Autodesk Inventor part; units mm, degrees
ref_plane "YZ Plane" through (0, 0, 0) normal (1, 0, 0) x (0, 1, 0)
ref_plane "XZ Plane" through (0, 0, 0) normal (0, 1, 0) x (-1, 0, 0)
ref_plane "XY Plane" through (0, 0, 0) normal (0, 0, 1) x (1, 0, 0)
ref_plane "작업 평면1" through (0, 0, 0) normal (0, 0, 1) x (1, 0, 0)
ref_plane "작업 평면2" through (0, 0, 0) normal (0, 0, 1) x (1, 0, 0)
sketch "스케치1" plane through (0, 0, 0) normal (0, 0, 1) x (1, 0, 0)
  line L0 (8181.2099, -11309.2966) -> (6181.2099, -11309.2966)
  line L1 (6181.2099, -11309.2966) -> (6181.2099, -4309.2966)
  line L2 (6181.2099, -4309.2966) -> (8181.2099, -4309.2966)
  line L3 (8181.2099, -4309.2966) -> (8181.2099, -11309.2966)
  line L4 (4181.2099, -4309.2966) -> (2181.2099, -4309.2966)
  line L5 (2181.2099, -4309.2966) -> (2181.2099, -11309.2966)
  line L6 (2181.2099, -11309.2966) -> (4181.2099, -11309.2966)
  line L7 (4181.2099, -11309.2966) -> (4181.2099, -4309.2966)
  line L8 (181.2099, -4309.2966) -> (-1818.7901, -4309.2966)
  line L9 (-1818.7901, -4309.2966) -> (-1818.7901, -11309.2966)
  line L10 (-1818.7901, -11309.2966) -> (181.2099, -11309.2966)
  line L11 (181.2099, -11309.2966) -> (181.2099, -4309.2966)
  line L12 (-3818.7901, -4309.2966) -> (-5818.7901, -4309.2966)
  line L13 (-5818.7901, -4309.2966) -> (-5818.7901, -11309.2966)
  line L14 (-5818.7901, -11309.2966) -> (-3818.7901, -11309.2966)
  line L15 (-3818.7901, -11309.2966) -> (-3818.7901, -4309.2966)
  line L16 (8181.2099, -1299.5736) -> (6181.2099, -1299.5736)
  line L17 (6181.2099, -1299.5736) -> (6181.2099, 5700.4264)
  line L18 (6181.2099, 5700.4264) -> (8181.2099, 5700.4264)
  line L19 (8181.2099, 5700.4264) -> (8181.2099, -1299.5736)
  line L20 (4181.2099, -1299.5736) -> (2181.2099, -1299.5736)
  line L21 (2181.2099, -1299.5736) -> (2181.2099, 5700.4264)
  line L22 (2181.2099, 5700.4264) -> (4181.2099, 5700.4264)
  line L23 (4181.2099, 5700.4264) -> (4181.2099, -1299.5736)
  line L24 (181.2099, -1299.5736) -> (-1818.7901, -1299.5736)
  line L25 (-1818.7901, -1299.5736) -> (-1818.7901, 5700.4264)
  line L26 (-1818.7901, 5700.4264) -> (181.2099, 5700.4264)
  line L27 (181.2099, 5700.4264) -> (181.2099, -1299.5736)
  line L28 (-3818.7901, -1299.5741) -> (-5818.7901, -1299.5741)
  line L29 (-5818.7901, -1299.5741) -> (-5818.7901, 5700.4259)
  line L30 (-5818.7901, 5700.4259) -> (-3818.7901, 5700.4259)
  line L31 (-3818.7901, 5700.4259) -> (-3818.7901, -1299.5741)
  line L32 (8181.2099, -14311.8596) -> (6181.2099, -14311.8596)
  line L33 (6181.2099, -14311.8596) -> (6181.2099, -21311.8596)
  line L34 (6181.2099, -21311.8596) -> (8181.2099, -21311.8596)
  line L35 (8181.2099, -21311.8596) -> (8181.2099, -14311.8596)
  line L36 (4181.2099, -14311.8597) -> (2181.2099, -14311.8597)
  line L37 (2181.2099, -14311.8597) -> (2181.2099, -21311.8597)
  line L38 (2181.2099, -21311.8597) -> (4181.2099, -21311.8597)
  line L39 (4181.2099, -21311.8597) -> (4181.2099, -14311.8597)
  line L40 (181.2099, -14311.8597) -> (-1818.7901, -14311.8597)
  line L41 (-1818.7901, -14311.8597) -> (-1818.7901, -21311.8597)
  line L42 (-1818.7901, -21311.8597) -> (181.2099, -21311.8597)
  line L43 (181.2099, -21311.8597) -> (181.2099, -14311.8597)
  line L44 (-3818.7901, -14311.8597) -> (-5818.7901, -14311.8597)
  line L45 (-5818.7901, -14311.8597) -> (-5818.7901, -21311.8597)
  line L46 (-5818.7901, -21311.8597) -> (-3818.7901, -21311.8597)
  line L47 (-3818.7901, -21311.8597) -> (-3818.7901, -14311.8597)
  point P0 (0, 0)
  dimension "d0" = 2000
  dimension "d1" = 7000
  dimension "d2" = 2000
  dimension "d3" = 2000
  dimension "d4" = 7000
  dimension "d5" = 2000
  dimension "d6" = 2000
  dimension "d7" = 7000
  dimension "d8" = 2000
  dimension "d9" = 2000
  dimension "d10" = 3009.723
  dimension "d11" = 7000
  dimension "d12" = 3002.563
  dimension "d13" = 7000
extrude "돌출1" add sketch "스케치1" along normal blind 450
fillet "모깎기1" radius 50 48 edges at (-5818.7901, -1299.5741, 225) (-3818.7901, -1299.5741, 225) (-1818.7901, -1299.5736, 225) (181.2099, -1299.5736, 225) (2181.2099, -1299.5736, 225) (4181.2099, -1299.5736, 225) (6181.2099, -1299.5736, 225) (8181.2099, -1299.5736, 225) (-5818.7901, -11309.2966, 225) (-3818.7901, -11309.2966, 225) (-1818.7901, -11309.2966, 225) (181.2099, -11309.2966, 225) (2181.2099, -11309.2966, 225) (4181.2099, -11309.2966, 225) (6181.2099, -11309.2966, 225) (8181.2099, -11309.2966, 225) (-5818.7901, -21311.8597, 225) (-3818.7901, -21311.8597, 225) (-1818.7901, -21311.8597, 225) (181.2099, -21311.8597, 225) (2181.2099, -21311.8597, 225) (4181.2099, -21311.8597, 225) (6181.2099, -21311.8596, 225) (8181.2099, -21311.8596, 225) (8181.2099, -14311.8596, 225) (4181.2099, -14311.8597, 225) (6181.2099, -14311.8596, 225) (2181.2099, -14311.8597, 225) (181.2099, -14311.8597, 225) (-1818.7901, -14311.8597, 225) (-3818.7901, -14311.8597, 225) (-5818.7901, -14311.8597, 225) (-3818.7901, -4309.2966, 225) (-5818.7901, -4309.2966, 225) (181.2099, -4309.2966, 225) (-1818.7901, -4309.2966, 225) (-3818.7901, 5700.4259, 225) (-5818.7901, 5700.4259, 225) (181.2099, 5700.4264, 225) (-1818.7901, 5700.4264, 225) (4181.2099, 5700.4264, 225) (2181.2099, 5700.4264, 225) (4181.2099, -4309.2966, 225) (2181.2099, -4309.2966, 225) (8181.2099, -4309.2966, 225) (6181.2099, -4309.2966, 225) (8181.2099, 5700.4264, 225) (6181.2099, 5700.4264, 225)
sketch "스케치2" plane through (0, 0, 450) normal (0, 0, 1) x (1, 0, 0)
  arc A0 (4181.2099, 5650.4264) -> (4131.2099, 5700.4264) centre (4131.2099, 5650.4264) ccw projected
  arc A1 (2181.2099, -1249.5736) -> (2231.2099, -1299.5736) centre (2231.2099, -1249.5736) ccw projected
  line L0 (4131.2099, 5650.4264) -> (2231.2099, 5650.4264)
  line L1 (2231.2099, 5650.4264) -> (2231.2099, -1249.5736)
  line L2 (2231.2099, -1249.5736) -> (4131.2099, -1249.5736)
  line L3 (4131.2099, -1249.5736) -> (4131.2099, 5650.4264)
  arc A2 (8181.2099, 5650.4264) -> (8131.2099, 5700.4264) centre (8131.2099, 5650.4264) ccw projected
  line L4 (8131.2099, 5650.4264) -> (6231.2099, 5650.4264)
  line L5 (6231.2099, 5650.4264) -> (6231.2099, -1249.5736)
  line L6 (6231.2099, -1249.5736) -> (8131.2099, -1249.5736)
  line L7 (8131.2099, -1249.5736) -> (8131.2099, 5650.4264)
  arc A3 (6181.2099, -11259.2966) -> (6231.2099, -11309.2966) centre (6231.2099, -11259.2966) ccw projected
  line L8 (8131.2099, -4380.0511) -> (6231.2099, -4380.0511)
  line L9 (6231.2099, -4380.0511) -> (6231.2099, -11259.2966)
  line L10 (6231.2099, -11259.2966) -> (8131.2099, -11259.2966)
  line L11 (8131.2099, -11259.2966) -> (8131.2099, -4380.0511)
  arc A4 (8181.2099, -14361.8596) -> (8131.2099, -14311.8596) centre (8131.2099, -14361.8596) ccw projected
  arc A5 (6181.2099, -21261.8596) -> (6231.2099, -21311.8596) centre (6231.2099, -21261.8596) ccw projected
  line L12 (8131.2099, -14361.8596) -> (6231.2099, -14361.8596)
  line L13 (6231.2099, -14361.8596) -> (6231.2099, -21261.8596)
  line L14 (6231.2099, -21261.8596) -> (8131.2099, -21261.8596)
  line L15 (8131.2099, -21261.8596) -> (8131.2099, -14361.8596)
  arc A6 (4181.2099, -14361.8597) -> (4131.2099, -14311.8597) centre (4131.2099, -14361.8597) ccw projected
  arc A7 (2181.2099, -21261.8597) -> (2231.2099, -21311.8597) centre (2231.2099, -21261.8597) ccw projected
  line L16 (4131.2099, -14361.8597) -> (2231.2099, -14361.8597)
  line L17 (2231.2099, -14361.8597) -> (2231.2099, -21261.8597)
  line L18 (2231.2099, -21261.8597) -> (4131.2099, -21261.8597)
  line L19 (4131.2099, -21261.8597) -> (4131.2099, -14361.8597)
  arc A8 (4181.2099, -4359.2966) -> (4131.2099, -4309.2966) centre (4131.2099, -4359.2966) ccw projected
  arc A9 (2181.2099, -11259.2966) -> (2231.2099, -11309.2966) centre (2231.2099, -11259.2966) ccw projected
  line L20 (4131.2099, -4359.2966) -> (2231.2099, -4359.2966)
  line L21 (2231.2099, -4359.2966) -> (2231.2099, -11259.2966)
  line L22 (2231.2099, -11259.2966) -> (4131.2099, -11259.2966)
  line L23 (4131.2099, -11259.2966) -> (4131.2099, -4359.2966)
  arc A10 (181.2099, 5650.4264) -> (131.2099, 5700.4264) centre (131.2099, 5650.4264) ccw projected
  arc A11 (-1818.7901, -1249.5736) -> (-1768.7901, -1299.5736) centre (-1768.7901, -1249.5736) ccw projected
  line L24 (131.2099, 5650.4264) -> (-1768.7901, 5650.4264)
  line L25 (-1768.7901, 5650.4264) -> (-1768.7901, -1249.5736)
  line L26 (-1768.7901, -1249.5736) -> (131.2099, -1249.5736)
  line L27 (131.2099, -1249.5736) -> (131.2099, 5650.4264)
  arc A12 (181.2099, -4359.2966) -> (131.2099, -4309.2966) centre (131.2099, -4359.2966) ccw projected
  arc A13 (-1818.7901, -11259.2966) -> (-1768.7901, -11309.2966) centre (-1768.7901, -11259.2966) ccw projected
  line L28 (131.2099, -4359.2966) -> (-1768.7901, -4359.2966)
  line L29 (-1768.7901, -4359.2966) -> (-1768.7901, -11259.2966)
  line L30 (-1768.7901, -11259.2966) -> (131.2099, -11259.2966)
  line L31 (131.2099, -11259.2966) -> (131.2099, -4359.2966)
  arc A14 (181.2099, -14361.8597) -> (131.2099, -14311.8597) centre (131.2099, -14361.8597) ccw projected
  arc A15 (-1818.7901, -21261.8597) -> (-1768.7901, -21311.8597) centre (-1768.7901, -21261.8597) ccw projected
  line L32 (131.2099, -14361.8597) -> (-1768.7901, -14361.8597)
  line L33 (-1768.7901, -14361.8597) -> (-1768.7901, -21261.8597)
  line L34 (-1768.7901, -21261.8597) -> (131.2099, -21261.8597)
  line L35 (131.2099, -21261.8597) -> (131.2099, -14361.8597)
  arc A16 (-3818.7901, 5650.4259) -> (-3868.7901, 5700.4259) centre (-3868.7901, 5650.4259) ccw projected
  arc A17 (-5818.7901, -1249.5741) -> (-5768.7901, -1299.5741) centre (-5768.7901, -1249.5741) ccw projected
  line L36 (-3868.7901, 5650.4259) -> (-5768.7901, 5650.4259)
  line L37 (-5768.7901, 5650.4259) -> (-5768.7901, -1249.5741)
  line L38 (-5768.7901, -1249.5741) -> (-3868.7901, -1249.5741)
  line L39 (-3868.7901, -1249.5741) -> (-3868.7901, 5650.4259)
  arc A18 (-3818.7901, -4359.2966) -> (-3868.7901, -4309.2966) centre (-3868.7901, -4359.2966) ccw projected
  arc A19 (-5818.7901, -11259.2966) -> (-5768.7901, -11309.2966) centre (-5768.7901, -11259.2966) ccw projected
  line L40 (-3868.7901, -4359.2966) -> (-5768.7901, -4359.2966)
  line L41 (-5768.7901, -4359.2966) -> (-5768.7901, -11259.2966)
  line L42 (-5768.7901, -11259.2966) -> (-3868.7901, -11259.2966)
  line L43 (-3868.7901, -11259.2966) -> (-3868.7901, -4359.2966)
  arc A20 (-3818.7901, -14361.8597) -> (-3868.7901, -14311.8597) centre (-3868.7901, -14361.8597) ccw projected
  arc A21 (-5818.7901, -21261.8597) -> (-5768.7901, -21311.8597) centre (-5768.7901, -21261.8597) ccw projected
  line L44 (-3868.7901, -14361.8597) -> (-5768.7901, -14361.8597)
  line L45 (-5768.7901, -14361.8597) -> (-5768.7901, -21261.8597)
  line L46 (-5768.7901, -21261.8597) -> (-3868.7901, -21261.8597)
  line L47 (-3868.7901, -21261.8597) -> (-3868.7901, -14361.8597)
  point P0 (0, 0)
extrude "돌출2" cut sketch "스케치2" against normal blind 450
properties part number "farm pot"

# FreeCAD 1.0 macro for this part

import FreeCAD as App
import Part
import Sketcher
Q = App.Units.Quantity


def edges_at(feature, points):
    """Names of the edges that pass closest to the given points."""
    edges = feature.Shape.Edges
    near = lambda p: min(range(len(edges)), key=lambda i: edges[i].distToShape(Part.Vertex(*p))[0])
    return sorted({f"Edge{near(p) + 1}" for p in points})

doc = App.newDocument("Part")
body = doc.addObject("PartDesign::Body", "Body")
body.AllowCompound = True

# Sketch on XY plane
sketch1 = doc.addObject("Sketcher::SketchObject", "Sketch")
body.addObject(sketch1)
sketch1.AttachmentSupport = (doc.XY_Plane, [""])
sketch1.MapMode = "FlatFace"
sketch1.addGeometry(Part.LineSegment(App.Vector(6181, -11309, 0), App.Vector(8181, -11309, 0)), False)
sketch1.addGeometry(Part.LineSegment(App.Vector(8181, -11309, 0), App.Vector(8181, -4309, 0)), False)
sketch1.addGeometry(Part.LineSegment(App.Vector(8181, -4309, 0), App.Vector(6181, -4309, 0)), False)
sketch1.addGeometry(Part.LineSegment(App.Vector(6181, -4309, 0), App.Vector(6181, -11309, 0)), False)
sketch1.addGeometry(Part.LineSegment(App.Vector(4181, -11309, 0), App.Vector(4181, -4309, 0)), False)
sketch1.addGeometry(Part.LineSegment(App.Vector(4181, -4309, 0), App.Vector(2181, -4309, 0)), False)
sketch1.addGeometry(Part.LineSegment(App.Vector(2181, -4309, 0), App.Vector(2181, -11309, 0)), False)
sketch1.addGeometry(Part.LineSegment(App.Vector(2181, -11309, 0), App.Vector(4181, -11309, 0)), False)
sketch1.addGeometry(Part.LineSegment(App.Vector(181, -11309, 0), App.Vector(181, -4309, 0)), False)
sketch1.addGeometry(Part.LineSegment(App.Vector(181, -4309, 0), App.Vector(-1819, -4309, 0)), False)
sketch1.addGeometry(Part.LineSegment(App.Vector(-1819, -4309, 0), App.Vector(-1819, -11309, 0)), False)
sketch1.addGeometry(Part.LineSegment(App.Vector(-1819, -11309, 0), App.Vector(181, -11309, 0)), False)
sketch1.addGeometry(Part.LineSegment(App.Vector(-3819, -11309, 0), App.Vector(-3819, -4309, 0)), False)
sketch1.addGeometry(Part.LineSegment(App.Vector(-3819, -4309, 0), App.Vector(-5819, -4309, 0)), False)
sketch1.addGeometry(Part.LineSegment(App.Vector(-5819, -4309, 0), App.Vector(-5819, -11309, 0)), False)
sketch1.addGeometry(Part.LineSegment(App.Vector(-5819, -11309, 0), App.Vector(-3819, -11309, 0)), False)
sketch1.addGeometry(Part.LineSegment(App.Vector(6181, -1300, 0), App.Vector(8181, -1300, 0)), False)
sketch1.addGeometry(Part.LineSegment(App.Vector(8181, -1300, 0), App.Vector(8181, 5700, 0)), False)
sketch1.addGeometry(Part.LineSegment(App.Vector(8181, 5700, 0), App.Vector(6181, 5700, 0)), False)
sketch1.addGeometry(Part.LineSegment(App.Vector(6181, 5700, 0), App.Vector(6181, -1300, 0)), False)
sketch1.addGeometry(Part.LineSegment(App.Vector(2181, -1300, 0), App.Vector(4181, -1300, 0)), False)
sketch1.addGeometry(Part.LineSegment(App.Vector(4181, -1300, 0), App.Vector(4181, 5700, 0)), False)
sketch1.addGeometry(Part.LineSegment(App.Vector(4181, 5700, 0), App.Vector(2181, 5700, 0)), False)
sketch1.addGeometry(Part.LineSegment(App.Vector(2181, 5700, 0), App.Vector(2181, -1300, 0)), False)
sketch1.addGeometry(Part.LineSegment(App.Vector(-1819, -1300, 0), App.Vector(181, -1300, 0)), False)
sketch1.addGeometry(Part.LineSegment(App.Vector(181, -1300, 0), App.Vector(181, 5700, 0)), False)
sketch1.addGeometry(Part.LineSegment(App.Vector(181, 5700, 0), App.Vector(-1819, 5700, 0)), False)
sketch1.addGeometry(Part.LineSegment(App.Vector(-1819, 5700, 0), App.Vector(-1819, -1300, 0)), False)
sketch1.addGeometry(Part.LineSegment(App.Vector(-5819, -1300, 0), App.Vector(-3819, -1300, 0)), False)
sketch1.addGeometry(Part.LineSegment(App.Vector(-3819, -1300, 0), App.Vector(-3819, 5700, 0)), False)
sketch1.addGeometry(Part.LineSegment(App.Vector(-3819, 5700, 0), App.Vector(-5819, 5700, 0)), False)
sketch1.addGeometry(Part.LineSegment(App.Vector(-5819, 5700, 0), App.Vector(-5819, -1300, 0)), False)
sketch1.addGeometry(Part.LineSegment(App.Vector(8181, -21312, 0), App.Vector(8181, -14312, 0)), False)
sketch1.addGeometry(Part.LineSegment(App.Vector(8181, -14312, 0), App.Vector(6181, -14312, 0)), False)
sketch1.addGeometry(Part.LineSegment(App.Vector(6181, -14312, 0), App.Vector(6181, -21312, 0)), False)
sketch1.addGeometry(Part.LineSegment(App.Vector(6181, -21312, 0), App.Vector(8181, -21312, 0)), False)
sketch1.addGeometry(Part.LineSegment(App.Vector(4181, -21312, 0), App.Vector(4181, -14312, 0)), False)
sketch1.addGeometry(Part.LineSegment(App.Vector(4181, -14312, 0), App.Vector(2181, -14312, 0)), False)
sketch1.addGeometry(Part.LineSegment(App.Vector(2181, -14312, 0), App.Vector(2181, -21312, 0)), False)
sketch1.addGeometry(Part.LineSegment(App.Vector(2181, -21312, 0), App.Vector(4181, -21312, 0)), False)
sketch1.addGeometry(Part.LineSegment(App.Vector(181, -21312, 0), App.Vector(181, -14312, 0)), False)
sketch1.addGeometry(Part.LineSegment(App.Vector(181, -14312, 0), App.Vector(-1819, -14312, 0)), False)
sketch1.addGeometry(Part.LineSegment(App.Vector(-1819, -14312, 0), App.Vector(-1819, -21312, 0)), False)
sketch1.addGeometry(Part.LineSegment(App.Vector(-1819, -21312, 0), App.Vector(181, -21312, 0)), False)
sketch1.addGeometry(Part.LineSegment(App.Vector(-3819, -21312, 0), App.Vector(-3819, -14312, 0)), False)
sketch1.addGeometry(Part.LineSegment(App.Vector(-3819, -14312, 0), App.Vector(-5819, -14312, 0)), False)
sketch1.addGeometry(Part.LineSegment(App.Vector(-5819, -14312, 0), App.Vector(-5819, -21312, 0)), False)
sketch1.addGeometry(Part.LineSegment(App.Vector(-5819, -21312, 0), App.Vector(-3819, -21312, 0)), False)
sketch1.addConstraint(Sketcher.Constraint("Coincident", 0, 2, 1, 1))
sketch1.addConstraint(Sketcher.Constraint("Coincident", 1, 2, 2, 1))
sketch1.addConstraint(Sketcher.Constraint("Coincident", 2, 2, 3, 1))
sketch1.addConstraint(Sketcher.Constraint("Coincident", 3, 2, 0, 1))
sketch1.addConstraint(Sketcher.Constraint("Coincident", 4, 2, 5, 1))
sketch1.addConstraint(Sketcher.Constraint("Coincident", 5, 2, 6, 1))
sketch1.addConstraint(Sketcher.Constraint("Coincident", 6, 2, 7, 1))
sketch1.addConstraint(Sketcher.Constraint("Coincident", 7, 2, 4, 1))
sketch1.addConstraint(Sketcher.Constraint("Coincident", 8, 2, 9, 1))
sketch1.addConstraint(Sketcher.Constraint("Coincident", 9, 2, 10, 1))
sketch1.addConstraint(Sketcher.Constraint("Coincident", 10, 2, 11, 1))
sketch1.addConstraint(Sketcher.Constraint("Coincident", 11, 2, 8, 1))
sketch1.addConstraint(Sketcher.Constraint("Coincident", 12, 2, 13, 1))
sketch1.addConstraint(Sketcher.Constraint("Coincident", 13, 2, 14, 1))
sketch1.addConstraint(Sketcher.Constraint("Coincident", 14, 2, 15, 1))
sketch1.addConstraint(Sketcher.Constraint("Coincident", 15, 2, 12, 1))
sketch1.addConstraint(Sketcher.Constraint("Coincident", 16, 2, 17, 1))
sketch1.addConstraint(Sketcher.Constraint("Coincident", 17, 2, 18, 1))
sketch1.addConstraint(Sketcher.Constraint("Coincident", 18, 2, 19, 1))
sketch1.addConstraint(Sketcher.Constraint("Coincident", 19, 2, 16, 1))
sketch1.addConstraint(Sketcher.Constraint("Coincident", 20, 2, 21, 1))
sketch1.addConstraint(Sketcher.Constraint("Coincident", 21, 2, 22, 1))
sketch1.addConstraint(Sketcher.Constraint("Coincident", 22, 2, 23, 1))
sketch1.addConstraint(Sketcher.Constraint("Coincident", 23, 2, 20, 1))
sketch1.addConstraint(Sketcher.Constraint("Coincident", 24, 2, 25, 1))
sketch1.addConstraint(Sketcher.Constraint("Coincident", 25, 2, 26, 1))
sketch1.addConstraint(Sketcher.Constraint("Coincident", 26, 2, 27, 1))
sketch1.addConstraint(Sketcher.Constraint("Coincident", 27, 2, 24, 1))
sketch1.addConstraint(Sketcher.Constraint("Coincident", 28, 2, 29, 1))
sketch1.addConstraint(Sketcher.Constraint("Coincident", 29, 2, 30, 1))
sketch1.addConstraint(Sketcher.Constraint("Coincident", 30, 2, 31, 1))
sketch1.addConstraint(Sketcher.Constraint("Coincident", 31, 2, 28, 1))
sketch1.addConstraint(Sketcher.Constraint("Coincident", 32, 2, 33, 1))
sketch1.addConstraint(Sketcher.Constraint("Coincident", 33, 2, 34, 1))
sketch1.addConstraint(Sketcher.Constraint("Coincident", 34, 2, 35, 1))
sketch1.addConstraint(Sketcher.Constraint("Coincident", 35, 2, 32, 1))
sketch1.addConstraint(Sketcher.Constraint("Coincident", 36, 2, 37, 1))
sketch1.addConstraint(Sketcher.Constraint("Coincident", 37, 2, 38, 1))
sketch1.addConstraint(Sketcher.Constraint("Coincident", 38, 2, 39, 1))
sketch1.addConstraint(Sketcher.Constraint("Coincident", 39, 2, 36, 1))
sketch1.addConstraint(Sketcher.Constraint("Coincident", 40, 2, 41, 1))
sketch1.addConstraint(Sketcher.Constraint("Coincident", 41, 2, 42, 1))
sketch1.addConstraint(Sketcher.Constraint("Coincident", 42, 2, 43, 1))
sketch1.addConstraint(Sketcher.Constraint("Coincident", 43, 2, 40, 1))
sketch1.addConstraint(Sketcher.Constraint("Coincident", 44, 2, 45, 1))
sketch1.addConstraint(Sketcher.Constraint("Coincident", 45, 2, 46, 1))
sketch1.addConstraint(Sketcher.Constraint("Coincident", 46, 2, 47, 1))
sketch1.addConstraint(Sketcher.Constraint("Coincident", 47, 2, 44, 1))
sketch1.addConstraint(Sketcher.Constraint("Horizontal", 0))
sketch1.addConstraint(Sketcher.Constraint("Vertical", 1))
sketch1.addConstraint(Sketcher.Constraint("Horizontal", 2))
sketch1.addConstraint(Sketcher.Constraint("Vertical", 3))
sketch1.addConstraint(Sketcher.Constraint("Vertical", 4))
sketch1.addConstraint(Sketcher.Constraint("Horizontal", 5))
sketch1.addConstraint(Sketcher.Constraint("Vertical", 6))
sketch1.addConstraint(Sketcher.Constraint("Horizontal", 7))
sketch1.addConstraint(Sketcher.Constraint("Vertical", 8))
sketch1.addConstraint(Sketcher.Constraint("Horizontal", 9))
sketch1.addConstraint(Sketcher.Constraint("Vertical", 10))
sketch1.addConstraint(Sketcher.Constraint("Horizontal", 11))
sketch1.addConstraint(Sketcher.Constraint("Vertical", 12))
sketch1.addConstraint(Sketcher.Constraint("Horizontal", 13))
sketch1.addConstraint(Sketcher.Constraint("Vertical", 14))
sketch1.addConstraint(Sketcher.Constraint("Horizontal", 15))
sketch1.addConstraint(Sketcher.Constraint("Horizontal", 16))
sketch1.addConstraint(Sketcher.Constraint("Vertical", 17))
sketch1.addConstraint(Sketcher.Constraint("Horizontal", 18))
sketch1.addConstraint(Sketcher.Constraint("Vertical", 19))
sketch1.addConstraint(Sketcher.Constraint("Horizontal", 20))
sketch1.addConstraint(Sketcher.Constraint("Vertical", 21))
sketch1.addConstraint(Sketcher.Constraint("Horizontal", 22))
sketch1.addConstraint(Sketcher.Constraint("Vertical", 23))
sketch1.addConstraint(Sketcher.Constraint("Horizontal", 24))
sketch1.addConstraint(Sketcher.Constraint("Vertical", 25))
sketch1.addConstraint(Sketcher.Constraint("Horizontal", 26))
sketch1.addConstraint(Sketcher.Constraint("Vertical", 27))
sketch1.addConstraint(Sketcher.Constraint("Horizontal", 28))
sketch1.addConstraint(Sketcher.Constraint("Vertical", 29))
sketch1.addConstraint(Sketcher.Constraint("Horizontal", 30))
sketch1.addConstraint(Sketcher.Constraint("Vertical", 31))
sketch1.addConstraint(Sketcher.Constraint("Vertical", 32))
sketch1.addConstraint(Sketcher.Constraint("Horizontal", 33))
sketch1.addConstraint(Sketcher.Constraint("Vertical", 34))
sketch1.addConstraint(Sketcher.Constraint("Horizontal", 35))
sketch1.addConstraint(Sketcher.Constraint("Vertical", 36))
sketch1.addConstraint(Sketcher.Constraint("Horizontal", 37))
sketch1.addConstraint(Sketcher.Constraint("Vertical", 38))
sketch1.addConstraint(Sketcher.Constraint("Horizontal", 39))
sketch1.addConstraint(Sketcher.Constraint("Vertical", 40))
sketch1.addConstraint(Sketcher.Constraint("Horizontal", 41))
sketch1.addConstraint(Sketcher.Constraint("Vertical", 42))
sketch1.addConstraint(Sketcher.Constraint("Horizontal", 43))
sketch1.addConstraint(Sketcher.Constraint("Vertical", 44))
sketch1.addConstraint(Sketcher.Constraint("Horizontal", 45))
sketch1.addConstraint(Sketcher.Constraint("Vertical", 46))
sketch1.addConstraint(Sketcher.Constraint("Horizontal", 47))
sketch1.addConstraint(Sketcher.Constraint("Horizontal", 2, 2, 4, 2))
sketch1.addConstraint(Sketcher.Constraint("Horizontal", 3, 2, 6, 2))
sketch1.addConstraint(Sketcher.Constraint("Horizontal", 5, 2, 8, 2))
sketch1.addConstraint(Sketcher.Constraint("Horizontal", 7, 2, 10, 2))
sketch1.addConstraint(Sketcher.Constraint("Horizontal", 9, 2, 12, 2))
sketch1.addConstraint(Sketcher.Constraint("Horizontal", 11, 2, 14, 2))
sketch1.addConstraint(Sketcher.Constraint("Horizontal", 19, 2, 20, 2))
sketch1.addConstraint(Sketcher.Constraint("Horizontal", 18, 2, 21, 2))
sketch1.addConstraint(Sketcher.Constraint("Horizontal", 23, 2, 24, 2))
sketch1.addConstraint(Sketcher.Constraint("Horizontal", 22, 2, 25, 2))
sketch1.addConstraint(Sketcher.Constraint("Horizontal", 33, 2, 36, 2))
sketch1.addConstraint(Sketcher.Constraint("Horizontal", 35, 2, 38, 2))
sketch1.addConstraint(Sketcher.Constraint("Horizontal", 37, 2, 40, 2))
sketch1.addConstraint(Sketcher.Constraint("Horizontal", 39, 2, 42, 2))
sketch1.addConstraint(Sketcher.Constraint("Horizontal", 41, 2, 44, 2))
sketch1.addConstraint(Sketcher.Constraint("Horizontal", 43, 2, 46, 2))
sketch1.addConstraint(Sketcher.Constraint("Vertical", 1, 2, 16, 2))
sketch1.addConstraint(Sketcher.Constraint("Vertical", 3, 2, 18, 2))
sketch1.addConstraint(Sketcher.Constraint("Vertical", 7, 2, 20, 2))
sketch1.addConstraint(Sketcher.Constraint("Vertical", 6, 2, 22, 2))
sketch1.addConstraint(Sketcher.Constraint("Vertical", 11, 2, 24, 2))
sketch1.addConstraint(Sketcher.Constraint("Vertical", 10, 2, 26, 2))
sketch1.addConstraint(Sketcher.Constraint("Vertical", 15, 2, 28, 2))
sketch1.addConstraint(Sketcher.Constraint("Vertical", 14, 2, 30, 2))
sketch1.addConstraint(Sketcher.Constraint("Vertical", 17, 2, 32, 2))
sketch1.addConstraint(Sketcher.Constraint("Vertical", 19, 2, 33, 2))
sketch1.addConstraint(Sketcher.Constraint("Vertical", 21, 2, 36, 2))
sketch1.addConstraint(Sketcher.Constraint("Vertical", 23, 2, 37, 2))
sketch1.addConstraint(Sketcher.Constraint("Vertical", 25, 2, 40, 2))
sketch1.addConstraint(Sketcher.Constraint("Vertical", 27, 2, 41, 2))
sketch1.addConstraint(Sketcher.Constraint("Vertical", 29, 2, 44, 2))
sketch1.addConstraint(Sketcher.Constraint("Vertical", 31, 2, 45, 2))
sketch1.addConstraint(Sketcher.Constraint("Equal", 2, 5))
sketch1.addConstraint(Sketcher.Constraint("Equal", 7, 9))
sketch1.addConstraint(Sketcher.Constraint("Equal", 11, 13))
sketch1.addConstraint(Sketcher.Constraint("Equal", 14, 17))
sketch1.addConstraint(Sketcher.Constraint("Equal", 27, 29))
sketch1.addConstraint(Sketcher.Constraint("Equal", 31, 32))
sketch1.addConstraint(Sketcher.Constraint("DistanceX", 0, 1, 0, 2, Q("2000 mm")))
sketch1.addConstraint(Sketcher.Constraint("DistanceY", 1, 1, 1, 2, Q("7000 mm")))
sketch1.addConstraint(Sketcher.Constraint("DistanceX", 4, 2, 2, 2, Q("2000 mm")))
sketch1.addConstraint(Sketcher.Constraint("DistanceX", 8, 2, 5, 2, Q("2000 mm")))
sketch1.addConstraint(Sketcher.Constraint("DistanceX", 12, 2, 9, 2, Q("2000 mm")))
sketch1.addConstraint(Sketcher.Constraint("DistanceY", 1, 2, 16, 2, Q("3009.723 mm")))
sketch1.addConstraint(Sketcher.Constraint("DistanceY", 32, 2, 0, 2, Q("3002.563 mm")))
sketch1.addConstraint(Sketcher.Constraint("DistanceY", 12, 2, 28, 2, Q("3009.7225 mm")))
sketch1.addConstraint(Sketcher.Constraint("DistanceX", -1, 1, 0, 2, Q("8181.21 mm")))
sketch1.addConstraint(Sketcher.Constraint("DistanceY", 28, 2, -1, 1, Q("1299.574 mm")))
pad1 = doc.addObject("PartDesign::Pad", "Pad")
body.addObject(pad1)
pad1.Profile = sketch1
pad1.Length = 450
doc.recompute()

fillet = doc.addObject("PartDesign::Fillet", "Fillet")
body.addObject(fillet)
fillet.Base = (pad1, edges_at(pad1, [
    (-5818.79, -1299.574, 225),
    (-3818.79, -1299.574, 225),
    (-1818.79, -1299.574, 225),
    (181.21, -1299.574, 225),
    (2181.21, -1299.574, 225),
    (4181.21, -1299.574, 225),
    (6181.21, -1299.574, 225),
    (8181.21, -1299.574, 225),
    (-5818.79, -11309.297, 225),
    (-3818.79, -11309.297, 225),
    (-1818.79, -11309.297, 225),
    (181.21, -11309.297, 225),
    (2181.21, -11309.297, 225),
    (4181.21, -11309.297, 225),
    (6181.21, -11309.297, 225),
    (8181.21, -11309.297, 225),
    (-5818.79, -21311.86, 225),
    (-3818.79, -21311.86, 225),
    (-1818.79, -21311.86, 225),
    (181.21, -21311.86, 225),
    (2181.21, -21311.86, 225),
    (4181.21, -21311.86, 225),
    (6181.21, -21311.86, 225),
    (8181.21, -21311.86, 225),
    (8181.21, -14311.86, 225),
    (4181.21, -14311.86, 225),
    (6181.21, -14311.86, 225),
    (2181.21, -14311.86, 225),
    (181.21, -14311.86, 225),
    (-1818.79, -14311.86, 225),
    (-3818.79, -14311.86, 225),
    (-5818.79, -14311.86, 225),
    (-3818.79, -4309.297, 225),
    (-5818.79, -4309.297, 225),
    (181.21, -4309.297, 225),
    (-1818.79, -4309.297, 225),
    (-3818.79, 5700.426, 225),
    (-5818.79, 5700.426, 225),
    (181.21, 5700.426, 225),
    (-1818.79, 5700.426, 225),
    (4181.21, 5700.426, 225),
    (2181.21, 5700.426, 225),
    (4181.21, -4309.297, 225),
    (2181.21, -4309.297, 225),
    (8181.21, -4309.297, 225),
    (6181.21, -4309.297, 225),
    (8181.21, 5700.426, 225),
    (6181.21, 5700.426, 225),
]))
fillet.Radius = 50

# Sketch on XY plane
sketch2 = doc.addObject("Sketcher::SketchObject", "Sketch001")
body.addObject(sketch2)
sketch2.AttachmentSupport = (doc.XY_Plane, [""])
sketch2.MapMode = "FlatFace"
sketch2.AttachmentOffset = App.Placement(App.Vector(0, 0, 450), App.Rotation())
sketch2.addGeometry(Part.LineSegment(App.Vector(4131, -1250, 0), App.Vector(4131, 5650, 0)), False)
sketch2.addGeometry(Part.LineSegment(App.Vector(4131, 5650, 0), App.Vector(2231, 5650, 0)), False)
sketch2.addGeometry(Part.LineSegment(App.Vector(2231, 5650, 0), App.Vector(2231, -1250, 0)), False)
sketch2.addGeometry(Part.LineSegment(App.Vector(2231, -1250, 0), App.Vector(4131, -1250, 0)), False)
sketch2.addGeometry(Part.LineSegment(App.Vector(8131, -1250, 0), App.Vector(8131, 5650, 0)), False)
sketch2.addGeometry(Part.LineSegment(App.Vector(8131, 5650, 0), App.Vector(6231, 5650, 0)), False)
sketch2.addGeometry(Part.LineSegment(App.Vector(6231, 5650, 0), App.Vector(6231, -1250, 0)), False)
sketch2.addGeometry(Part.LineSegment(App.Vector(6231, -1250, 0), App.Vector(8131, -1250, 0)), False)
sketch2.addGeometry(Part.LineSegment(App.Vector(8131, -11259, 0), App.Vector(8131, -4380, 0)), False)
sketch2.addGeometry(Part.LineSegment(App.Vector(8131, -4380, 0), App.Vector(6231, -4380, 0)), False)
sketch2.addGeometry(Part.LineSegment(App.Vector(6231, -4380, 0), App.Vector(6231, -11259, 0)), False)
sketch2.addGeometry(Part.LineSegment(App.Vector(6231, -11259, 0), App.Vector(8131, -11259, 0)), False)
sketch2.addGeometry(Part.LineSegment(App.Vector(8131, -21262, 0), App.Vector(8131, -14362, 0)), False)
sketch2.addGeometry(Part.LineSegment(App.Vector(8131, -14362, 0), App.Vector(6231, -14362, 0)), False)
sketch2.addGeometry(Part.LineSegment(App.Vector(6231, -14362, 0), App.Vector(6231, -21262, 0)), False)
sketch2.addGeometry(Part.LineSegment(App.Vector(6231, -21262, 0), App.Vector(8131, -21262, 0)), False)
sketch2.addGeometry(Part.LineSegment(App.Vector(4131, -21262, 0), App.Vector(4131, -14362, 0)), False)
sketch2.addGeometry(Part.LineSegment(App.Vector(4131, -14362, 0), App.Vector(2231, -14362, 0)), False)
sketch2.addGeometry(Part.LineSegment(App.Vector(2231, -14362, 0), App.Vector(2231, -21262, 0)), False)
sketch2.addGeometry(Part.LineSegment(App.Vector(2231, -21262, 0), App.Vector(4131, -21262, 0)), False)
sketch2.addGeometry(Part.LineSegment(App.Vector(4131, -11259, 0), App.Vector(4131, -4359, 0)), False)
sketch2.addGeometry(Part.LineSegment(App.Vector(4131, -4359, 0), App.Vector(2231, -4359, 0)), False)
sketch2.addGeometry(Part.LineSegment(App.Vector(2231, -4359, 0), App.Vector(2231, -11259, 0)), False)
sketch2.addGeometry(Part.LineSegment(App.Vector(2231, -11259, 0), App.Vector(4131, -11259, 0)), False)
sketch2.addGeometry(Part.LineSegment(App.Vector(131, -1250, 0), App.Vector(131, 5650, 0)), False)
sketch2.addGeometry(Part.LineSegment(App.Vector(131, 5650, 0), App.Vector(-1769, 5650, 0)), False)
sketch2.addGeometry(Part.LineSegment(App.Vector(-1769, 5650, 0), App.Vector(-1769, -1250, 0)), False)
sketch2.addGeometry(Part.LineSegment(App.Vector(-1769, -1250, 0), App.Vector(131, -1250, 0)), False)
sketch2.addGeometry(Part.LineSegment(App.Vector(131, -11259, 0), App.Vector(131, -4359, 0)), False)
sketch2.addGeometry(Part.LineSegment(App.Vector(131, -4359, 0), App.Vector(-1769, -4359, 0)), False)
sketch2.addGeometry(Part.LineSegment(App.Vector(-1769, -4359, 0), App.Vector(-1769, -11259, 0)), False)
sketch2.addGeometry(Part.LineSegment(App.Vector(-1769, -11259, 0), App.Vector(131, -11259, 0)), False)
sketch2.addGeometry(Part.LineSegment(App.Vector(131, -21262, 0), App.Vector(131, -14362, 0)), False)
sketch2.addGeometry(Part.LineSegment(App.Vector(131, -14362, 0), App.Vector(-1769, -14362, 0)), False)
sketch2.addGeometry(Part.LineSegment(App.Vector(-1769, -14362, 0), App.Vector(-1769, -21262, 0)), False)
sketch2.addGeometry(Part.LineSegment(App.Vector(-1769, -21262, 0), App.Vector(131, -21262, 0)), False)
sketch2.addGeometry(Part.LineSegment(App.Vector(-3869, -1250, 0), App.Vector(-3869, 5650, 0)), False)
sketch2.addGeometry(Part.LineSegment(App.Vector(-3869, 5650, 0), App.Vector(-5769, 5650, 0)), False)
sketch2.addGeometry(Part.LineSegment(App.Vector(-5769, 5650, 0), App.Vector(-5769, -1250, 0)), False)
sketch2.addGeometry(Part.LineSegment(App.Vector(-5769, -1250, 0), App.Vector(-3869, -1250, 0)), False)
sketch2.addGeometry(Part.LineSegment(App.Vector(-3869, -11259, 0), App.Vector(-3869, -4359, 0)), False)
sketch2.addGeometry(Part.LineSegment(App.Vector(-3869, -4359, 0), App.Vector(-5769, -4359, 0)), False)
sketch2.addGeometry(Part.LineSegment(App.Vector(-5769, -4359, 0), App.Vector(-5769, -11259, 0)), False)
sketch2.addGeometry(Part.LineSegment(App.Vector(-5769, -11259, 0), App.Vector(-3869, -11259, 0)), False)
sketch2.addGeometry(Part.LineSegment(App.Vector(-3869, -21262, 0), App.Vector(-3869, -14362, 0)), False)
sketch2.addGeometry(Part.LineSegment(App.Vector(-3869, -14362, 0), App.Vector(-5769, -14362, 0)), False)
sketch2.addGeometry(Part.LineSegment(App.Vector(-5769, -14362, 0), App.Vector(-5769, -21262, 0)), False)
sketch2.addGeometry(Part.LineSegment(App.Vector(-5769, -21262, 0), App.Vector(-3869, -21262, 0)), False)
sketch2.addConstraint(Sketcher.Constraint("Coincident", 0, 2, 1, 1))
sketch2.addConstraint(Sketcher.Constraint("Coincident", 1, 2, 2, 1))
sketch2.addConstraint(Sketcher.Constraint("Coincident", 2, 2, 3, 1))
sketch2.addConstraint(Sketcher.Constraint("Coincident", 3, 2, 0, 1))
sketch2.addConstraint(Sketcher.Constraint("Coincident", 4, 2, 5, 1))
sketch2.addConstraint(Sketcher.Constraint("Coincident", 5, 2, 6, 1))
sketch2.addConstraint(Sketcher.Constraint("Coincident", 6, 2, 7, 1))
sketch2.addConstraint(Sketcher.Constraint("Coincident", 7, 2, 4, 1))
sketch2.addConstraint(Sketcher.Constraint("Coincident", 8, 2, 9, 1))
sketch2.addConstraint(Sketcher.Constraint("Coincident", 9, 2, 10, 1))
sketch2.addConstraint(Sketcher.Constraint("Coincident", 10, 2, 11, 1))
sketch2.addConstraint(Sketcher.Constraint("Coincident", 11, 2, 8, 1))
sketch2.addConstraint(Sketcher.Constraint("Coincident", 12, 2, 13, 1))
sketch2.addConstraint(Sketcher.Constraint("Coincident", 13, 2, 14, 1))
sketch2.addConstraint(Sketcher.Constraint("Coincident", 14, 2, 15, 1))
sketch2.addConstraint(Sketcher.Constraint("Coincident", 15, 2, 12, 1))
sketch2.addConstraint(Sketcher.Constraint("Coincident", 16, 2, 17, 1))
sketch2.addConstraint(Sketcher.Constraint("Coincident", 17, 2, 18, 1))
sketch2.addConstraint(Sketcher.Constraint("Coincident", 18, 2, 19, 1))
sketch2.addConstraint(Sketcher.Constraint("Coincident", 19, 2, 16, 1))
sketch2.addConstraint(Sketcher.Constraint("Coincident", 20, 2, 21, 1))
sketch2.addConstraint(Sketcher.Constraint("Coincident", 21, 2, 22, 1))
sketch2.addConstraint(Sketcher.Constraint("Coincident", 22, 2, 23, 1))
sketch2.addConstraint(Sketcher.Constraint("Coincident", 23, 2, 20, 1))
sketch2.addConstraint(Sketcher.Constraint("Coincident", 24, 2, 25, 1))
sketch2.addConstraint(Sketcher.Constraint("Coincident", 25, 2, 26, 1))
sketch2.addConstraint(Sketcher.Constraint("Coincident", 26, 2, 27, 1))
sketch2.addConstraint(Sketcher.Constraint("Coincident", 27, 2, 24, 1))
sketch2.addConstraint(Sketcher.Constraint("Coincident", 28, 2, 29, 1))
sketch2.addConstraint(Sketcher.Constraint("Coincident", 29, 2, 30, 1))
sketch2.addConstraint(Sketcher.Constraint("Coincident", 30, 2, 31, 1))
sketch2.addConstraint(Sketcher.Constraint("Coincident", 31, 2, 28, 1))
sketch2.addConstraint(Sketcher.Constraint("Coincident", 32, 2, 33, 1))
sketch2.addConstraint(Sketcher.Constraint("Coincident", 33, 2, 34, 1))
sketch2.addConstraint(Sketcher.Constraint("Coincident", 34, 2, 35, 1))
sketch2.addConstraint(Sketcher.Constraint("Coincident", 35, 2, 32, 1))
sketch2.addConstraint(Sketcher.Constraint("Coincident", 36, 2, 37, 1))
sketch2.addConstraint(Sketcher.Constraint("Coincident", 37, 2, 38, 1))
sketch2.addConstraint(Sketcher.Constraint("Coincident", 38, 2, 39, 1))
sketch2.addConstraint(Sketcher.Constraint("Coincident", 39, 2, 36, 1))
sketch2.addConstraint(Sketcher.Constraint("Coincident", 40, 2, 41, 1))
sketch2.addConstraint(Sketcher.Constraint("Coincident", 41, 2, 42, 1))
sketch2.addConstraint(Sketcher.Constraint("Coincident", 42, 2, 43, 1))
sketch2.addConstraint(Sketcher.Constraint("Coincident", 43, 2, 40, 1))
sketch2.addConstraint(Sketcher.Constraint("Coincident", 44, 2, 45, 1))
sketch2.addConstraint(Sketcher.Constraint("Coincident", 45, 2, 46, 1))
sketch2.addConstraint(Sketcher.Constraint("Coincident", 46, 2, 47, 1))
sketch2.addConstraint(Sketcher.Constraint("Coincident", 47, 2, 44, 1))
sketch2.addConstraint(Sketcher.Constraint("Vertical", 0))
sketch2.addConstraint(Sketcher.Constraint("Horizontal", 1))
sketch2.addConstraint(Sketcher.Constraint("Vertical", 2))
sketch2.addConstraint(Sketcher.Constraint("Horizontal", 3))
sketch2.addConstraint(Sketcher.Constraint("Vertical", 4))
sketch2.addConstraint(Sketcher.Constraint("Horizontal", 5))
sketch2.addConstraint(Sketcher.Constraint("Vertical", 6))
sketch2.addConstraint(Sketcher.Constraint("Horizontal", 7))
sketch2.addConstraint(Sketcher.Constraint("Vertical", 8))
sketch2.addConstraint(Sketcher.Constraint("Horizontal", 9))
sketch2.addConstraint(Sketcher.Constraint("Vertical", 10))
sketch2.addConstraint(Sketcher.Constraint("Horizontal", 11))
sketch2.addConstraint(Sketcher.Constraint("Vertical", 12))
sketch2.addConstraint(Sketcher.Constraint("Horizontal", 13))
sketch2.addConstraint(Sketcher.Constraint("Vertical", 14))
sketch2.addConstraint(Sketcher.Constraint("Horizontal", 15))
sketch2.addConstraint(Sketcher.Constraint("Vertical", 16))
sketch2.addConstraint(Sketcher.Constraint("Horizontal", 17))
sketch2.addConstraint(Sketcher.Constraint("Vertical", 18))
sketch2.addConstraint(Sketcher.Constraint("Horizontal", 19))
sketch2.addConstraint(Sketcher.Constraint("Vertical", 20))
sketch2.addConstraint(Sketcher.Constraint("Horizontal", 21))
sketch2.addConstraint(Sketcher.Constraint("Vertical", 22))
sketch2.addConstraint(Sketcher.Constraint("Horizontal", 23))
sketch2.addConstraint(Sketcher.Constraint("Vertical", 24))
sketch2.addConstraint(Sketcher.Constraint("Horizontal", 25))
sketch2.addConstraint(Sketcher.Constraint("Vertical", 26))
sketch2.addConstraint(Sketcher.Constraint("Horizontal", 27))
sketch2.addConstraint(Sketcher.Constraint("Vertical", 28))
sketch2.addConstraint(Sketcher.Constraint("Horizontal", 29))
sketch2.addConstraint(Sketcher.Constraint("Vertical", 30))
sketch2.addConstraint(Sketcher.Constraint("Horizontal", 31))
sketch2.addConstraint(Sketcher.Constraint("Vertical", 32))
sketch2.addConstraint(Sketcher.Constraint("Horizontal", 33))
sketch2.addConstraint(Sketcher.Constraint("Vertical", 34))
sketch2.addConstraint(Sketcher.Constraint("Horizontal", 35))
sketch2.addConstraint(Sketcher.Constraint("Vertical", 36))
sketch2.addConstraint(Sketcher.Constraint("Horizontal", 37))
sketch2.addConstraint(Sketcher.Constraint("Vertical", 38))
sketch2.addConstraint(Sketcher.Constraint("Horizontal", 39))
sketch2.addConstraint(Sketcher.Constraint("Vertical", 40))
sketch2.addConstraint(Sketcher.Constraint("Horizontal", 41))
sketch2.addConstraint(Sketcher.Constraint("Vertical", 42))
sketch2.addConstraint(Sketcher.Constraint("Horizontal", 43))
sketch2.addConstraint(Sketcher.Constraint("Vertical", 44))
sketch2.addConstraint(Sketcher.Constraint("Horizontal", 45))
sketch2.addConstraint(Sketcher.Constraint("Vertical", 46))
sketch2.addConstraint(Sketcher.Constraint("Horizontal", 47))
sketch2.addConstraint(Sketcher.Constraint("Horizontal", 1, 2, 4, 2))
sketch2.addConstraint(Sketcher.Constraint("Horizontal", 3, 2, 6, 2))
sketch2.addConstraint(Sketcher.Constraint("Horizontal", 13, 2, 16, 2))
sketch2.addConstraint(Sketcher.Constraint("Horizontal", 15, 2, 18, 2))
sketch2.addConstraint(Sketcher.Constraint("Horizontal", 11, 2, 22, 2))
sketch2.addConstraint(Sketcher.Constraint("Horizontal", 5, 2, 24, 2))
sketch2.addConstraint(Sketcher.Constraint("Horizontal", 7, 2, 26, 2))
sketch2.addConstraint(Sketcher.Constraint("Horizontal", 21, 2, 28, 2))
sketch2.addConstraint(Sketcher.Constraint("Horizontal", 23, 2, 30, 2))
sketch2.addConstraint(Sketcher.Constraint("Horizontal", 17, 2, 32, 2))
sketch2.addConstraint(Sketcher.Constraint("Horizontal", 19, 2, 34, 2))
sketch2.addConstraint(Sketcher.Constraint("Horizontal", 29, 2, 40, 2))
sketch2.addConstraint(Sketcher.Constraint("Horizontal", 31, 2, 42, 2))
sketch2.addConstraint(Sketcher.Constraint("Horizontal", 33, 2, 44, 2))
sketch2.addConstraint(Sketcher.Constraint("Horizontal", 35, 2, 46, 2))
sketch2.addConstraint(Sketcher.Constraint("Vertical", 7, 2, 8, 2))
sketch2.addConstraint(Sketcher.Constraint("Vertical", 6, 2, 9, 2))
sketch2.addConstraint(Sketcher.Constraint("Vertical", 11, 2, 12, 2))
sketch2.addConstraint(Sketcher.Constraint("Vertical", 10, 2, 13, 2))
sketch2.addConstraint(Sketcher.Constraint("Vertical", 3, 2, 16, 2))
sketch2.addConstraint(Sketcher.Constraint("Vertical", 2, 2, 17, 2))
sketch2.addConstraint(Sketcher.Constraint("Vertical", 19, 2, 20, 2))
sketch2.addConstraint(Sketcher.Constraint("Vertical", 18, 2, 21, 2))
sketch2.addConstraint(Sketcher.Constraint("Vertical", 27, 2, 28, 2))
sketch2.addConstraint(Sketcher.Constraint("Vertical", 26, 2, 29, 2))
sketch2.addConstraint(Sketcher.Constraint("Vertical", 31, 2, 32, 2))
sketch2.addConstraint(Sketcher.Constraint("Vertical", 30, 2, 33, 2))
sketch2.addConstraint(Sketcher.Constraint("Vertical", 39, 2, 40, 2))
sketch2.addConstraint(Sketcher.Constraint("Vertical", 38, 2, 41, 2))
sketch2.addConstraint(Sketcher.Constraint("Vertical", 43, 2, 44, 2))
sketch2.addConstraint(Sketcher.Constraint("Vertical", 42, 2, 45, 2))
sketch2.addConstraint(Sketcher.Constraint("Equal", 3, 5))
sketch2.addConstraint(Sketcher.Constraint("Equal", 23, 25))
sketch2.addConstraint(Sketcher.Constraint("Equal", 35, 37))
sketch2.addConstraint(Sketcher.Constraint("Equal", 6, 12))
sketch2.addConstraint(Sketcher.Constraint("Equal", 18, 20))
sketch2.addConstraint(Sketcher.Constraint("Equal", 34, 36))
sketch2.addConstraint(Sketcher.Constraint("DistanceX", 1, 2, 1, 1, Q("1900 mm")))
sketch2.addConstraint(Sketcher.Constraint("DistanceY", 0, 1, 0, 2, Q("6900 mm")))
sketch2.addConstraint(Sketcher.Constraint("DistanceX", 0, 2, 4, 2, Q("4000 mm")))
sketch2.addConstraint(Sketcher.Constraint("DistanceX", 24, 2, 1, 2, Q("2100 mm")))
sketch2.addConstraint(Sketcher.Constraint("DistanceX", 36, 2, 25, 2, Q("2100 mm")))
sketch2.addConstraint(Sketcher.Constraint("DistanceX", -1, 1, 0, 2, Q("4131.21 mm")))
sketch2.addConstraint(Sketcher.Constraint("DistanceY", 8, 1, 8, 2, Q("6879.2455 mm")))
sketch2.addConstraint(Sketcher.Constraint("DistanceY", 8, 2, -1, 1, Q("4380.051 mm")))
sketch2.addConstraint(Sketcher.Constraint("DistanceY", -1, 1, 36, 2, Q("5650.426 mm")))
sketch2.addConstraint(Sketcher.Constraint("DistanceY", 10, 2, 6, 2, Q("10009.723 mm")))
sketch2.addConstraint(Sketcher.Constraint("DistanceY", 12, 2, 11, 2, Q("3102.563 mm")))
pocket1 = doc.addObject("PartDesign::Pocket", "Pocket")
body.addObject(pocket1)
pocket1.Profile = sketch2
pocket1.Length = 450

doc.recompute()
